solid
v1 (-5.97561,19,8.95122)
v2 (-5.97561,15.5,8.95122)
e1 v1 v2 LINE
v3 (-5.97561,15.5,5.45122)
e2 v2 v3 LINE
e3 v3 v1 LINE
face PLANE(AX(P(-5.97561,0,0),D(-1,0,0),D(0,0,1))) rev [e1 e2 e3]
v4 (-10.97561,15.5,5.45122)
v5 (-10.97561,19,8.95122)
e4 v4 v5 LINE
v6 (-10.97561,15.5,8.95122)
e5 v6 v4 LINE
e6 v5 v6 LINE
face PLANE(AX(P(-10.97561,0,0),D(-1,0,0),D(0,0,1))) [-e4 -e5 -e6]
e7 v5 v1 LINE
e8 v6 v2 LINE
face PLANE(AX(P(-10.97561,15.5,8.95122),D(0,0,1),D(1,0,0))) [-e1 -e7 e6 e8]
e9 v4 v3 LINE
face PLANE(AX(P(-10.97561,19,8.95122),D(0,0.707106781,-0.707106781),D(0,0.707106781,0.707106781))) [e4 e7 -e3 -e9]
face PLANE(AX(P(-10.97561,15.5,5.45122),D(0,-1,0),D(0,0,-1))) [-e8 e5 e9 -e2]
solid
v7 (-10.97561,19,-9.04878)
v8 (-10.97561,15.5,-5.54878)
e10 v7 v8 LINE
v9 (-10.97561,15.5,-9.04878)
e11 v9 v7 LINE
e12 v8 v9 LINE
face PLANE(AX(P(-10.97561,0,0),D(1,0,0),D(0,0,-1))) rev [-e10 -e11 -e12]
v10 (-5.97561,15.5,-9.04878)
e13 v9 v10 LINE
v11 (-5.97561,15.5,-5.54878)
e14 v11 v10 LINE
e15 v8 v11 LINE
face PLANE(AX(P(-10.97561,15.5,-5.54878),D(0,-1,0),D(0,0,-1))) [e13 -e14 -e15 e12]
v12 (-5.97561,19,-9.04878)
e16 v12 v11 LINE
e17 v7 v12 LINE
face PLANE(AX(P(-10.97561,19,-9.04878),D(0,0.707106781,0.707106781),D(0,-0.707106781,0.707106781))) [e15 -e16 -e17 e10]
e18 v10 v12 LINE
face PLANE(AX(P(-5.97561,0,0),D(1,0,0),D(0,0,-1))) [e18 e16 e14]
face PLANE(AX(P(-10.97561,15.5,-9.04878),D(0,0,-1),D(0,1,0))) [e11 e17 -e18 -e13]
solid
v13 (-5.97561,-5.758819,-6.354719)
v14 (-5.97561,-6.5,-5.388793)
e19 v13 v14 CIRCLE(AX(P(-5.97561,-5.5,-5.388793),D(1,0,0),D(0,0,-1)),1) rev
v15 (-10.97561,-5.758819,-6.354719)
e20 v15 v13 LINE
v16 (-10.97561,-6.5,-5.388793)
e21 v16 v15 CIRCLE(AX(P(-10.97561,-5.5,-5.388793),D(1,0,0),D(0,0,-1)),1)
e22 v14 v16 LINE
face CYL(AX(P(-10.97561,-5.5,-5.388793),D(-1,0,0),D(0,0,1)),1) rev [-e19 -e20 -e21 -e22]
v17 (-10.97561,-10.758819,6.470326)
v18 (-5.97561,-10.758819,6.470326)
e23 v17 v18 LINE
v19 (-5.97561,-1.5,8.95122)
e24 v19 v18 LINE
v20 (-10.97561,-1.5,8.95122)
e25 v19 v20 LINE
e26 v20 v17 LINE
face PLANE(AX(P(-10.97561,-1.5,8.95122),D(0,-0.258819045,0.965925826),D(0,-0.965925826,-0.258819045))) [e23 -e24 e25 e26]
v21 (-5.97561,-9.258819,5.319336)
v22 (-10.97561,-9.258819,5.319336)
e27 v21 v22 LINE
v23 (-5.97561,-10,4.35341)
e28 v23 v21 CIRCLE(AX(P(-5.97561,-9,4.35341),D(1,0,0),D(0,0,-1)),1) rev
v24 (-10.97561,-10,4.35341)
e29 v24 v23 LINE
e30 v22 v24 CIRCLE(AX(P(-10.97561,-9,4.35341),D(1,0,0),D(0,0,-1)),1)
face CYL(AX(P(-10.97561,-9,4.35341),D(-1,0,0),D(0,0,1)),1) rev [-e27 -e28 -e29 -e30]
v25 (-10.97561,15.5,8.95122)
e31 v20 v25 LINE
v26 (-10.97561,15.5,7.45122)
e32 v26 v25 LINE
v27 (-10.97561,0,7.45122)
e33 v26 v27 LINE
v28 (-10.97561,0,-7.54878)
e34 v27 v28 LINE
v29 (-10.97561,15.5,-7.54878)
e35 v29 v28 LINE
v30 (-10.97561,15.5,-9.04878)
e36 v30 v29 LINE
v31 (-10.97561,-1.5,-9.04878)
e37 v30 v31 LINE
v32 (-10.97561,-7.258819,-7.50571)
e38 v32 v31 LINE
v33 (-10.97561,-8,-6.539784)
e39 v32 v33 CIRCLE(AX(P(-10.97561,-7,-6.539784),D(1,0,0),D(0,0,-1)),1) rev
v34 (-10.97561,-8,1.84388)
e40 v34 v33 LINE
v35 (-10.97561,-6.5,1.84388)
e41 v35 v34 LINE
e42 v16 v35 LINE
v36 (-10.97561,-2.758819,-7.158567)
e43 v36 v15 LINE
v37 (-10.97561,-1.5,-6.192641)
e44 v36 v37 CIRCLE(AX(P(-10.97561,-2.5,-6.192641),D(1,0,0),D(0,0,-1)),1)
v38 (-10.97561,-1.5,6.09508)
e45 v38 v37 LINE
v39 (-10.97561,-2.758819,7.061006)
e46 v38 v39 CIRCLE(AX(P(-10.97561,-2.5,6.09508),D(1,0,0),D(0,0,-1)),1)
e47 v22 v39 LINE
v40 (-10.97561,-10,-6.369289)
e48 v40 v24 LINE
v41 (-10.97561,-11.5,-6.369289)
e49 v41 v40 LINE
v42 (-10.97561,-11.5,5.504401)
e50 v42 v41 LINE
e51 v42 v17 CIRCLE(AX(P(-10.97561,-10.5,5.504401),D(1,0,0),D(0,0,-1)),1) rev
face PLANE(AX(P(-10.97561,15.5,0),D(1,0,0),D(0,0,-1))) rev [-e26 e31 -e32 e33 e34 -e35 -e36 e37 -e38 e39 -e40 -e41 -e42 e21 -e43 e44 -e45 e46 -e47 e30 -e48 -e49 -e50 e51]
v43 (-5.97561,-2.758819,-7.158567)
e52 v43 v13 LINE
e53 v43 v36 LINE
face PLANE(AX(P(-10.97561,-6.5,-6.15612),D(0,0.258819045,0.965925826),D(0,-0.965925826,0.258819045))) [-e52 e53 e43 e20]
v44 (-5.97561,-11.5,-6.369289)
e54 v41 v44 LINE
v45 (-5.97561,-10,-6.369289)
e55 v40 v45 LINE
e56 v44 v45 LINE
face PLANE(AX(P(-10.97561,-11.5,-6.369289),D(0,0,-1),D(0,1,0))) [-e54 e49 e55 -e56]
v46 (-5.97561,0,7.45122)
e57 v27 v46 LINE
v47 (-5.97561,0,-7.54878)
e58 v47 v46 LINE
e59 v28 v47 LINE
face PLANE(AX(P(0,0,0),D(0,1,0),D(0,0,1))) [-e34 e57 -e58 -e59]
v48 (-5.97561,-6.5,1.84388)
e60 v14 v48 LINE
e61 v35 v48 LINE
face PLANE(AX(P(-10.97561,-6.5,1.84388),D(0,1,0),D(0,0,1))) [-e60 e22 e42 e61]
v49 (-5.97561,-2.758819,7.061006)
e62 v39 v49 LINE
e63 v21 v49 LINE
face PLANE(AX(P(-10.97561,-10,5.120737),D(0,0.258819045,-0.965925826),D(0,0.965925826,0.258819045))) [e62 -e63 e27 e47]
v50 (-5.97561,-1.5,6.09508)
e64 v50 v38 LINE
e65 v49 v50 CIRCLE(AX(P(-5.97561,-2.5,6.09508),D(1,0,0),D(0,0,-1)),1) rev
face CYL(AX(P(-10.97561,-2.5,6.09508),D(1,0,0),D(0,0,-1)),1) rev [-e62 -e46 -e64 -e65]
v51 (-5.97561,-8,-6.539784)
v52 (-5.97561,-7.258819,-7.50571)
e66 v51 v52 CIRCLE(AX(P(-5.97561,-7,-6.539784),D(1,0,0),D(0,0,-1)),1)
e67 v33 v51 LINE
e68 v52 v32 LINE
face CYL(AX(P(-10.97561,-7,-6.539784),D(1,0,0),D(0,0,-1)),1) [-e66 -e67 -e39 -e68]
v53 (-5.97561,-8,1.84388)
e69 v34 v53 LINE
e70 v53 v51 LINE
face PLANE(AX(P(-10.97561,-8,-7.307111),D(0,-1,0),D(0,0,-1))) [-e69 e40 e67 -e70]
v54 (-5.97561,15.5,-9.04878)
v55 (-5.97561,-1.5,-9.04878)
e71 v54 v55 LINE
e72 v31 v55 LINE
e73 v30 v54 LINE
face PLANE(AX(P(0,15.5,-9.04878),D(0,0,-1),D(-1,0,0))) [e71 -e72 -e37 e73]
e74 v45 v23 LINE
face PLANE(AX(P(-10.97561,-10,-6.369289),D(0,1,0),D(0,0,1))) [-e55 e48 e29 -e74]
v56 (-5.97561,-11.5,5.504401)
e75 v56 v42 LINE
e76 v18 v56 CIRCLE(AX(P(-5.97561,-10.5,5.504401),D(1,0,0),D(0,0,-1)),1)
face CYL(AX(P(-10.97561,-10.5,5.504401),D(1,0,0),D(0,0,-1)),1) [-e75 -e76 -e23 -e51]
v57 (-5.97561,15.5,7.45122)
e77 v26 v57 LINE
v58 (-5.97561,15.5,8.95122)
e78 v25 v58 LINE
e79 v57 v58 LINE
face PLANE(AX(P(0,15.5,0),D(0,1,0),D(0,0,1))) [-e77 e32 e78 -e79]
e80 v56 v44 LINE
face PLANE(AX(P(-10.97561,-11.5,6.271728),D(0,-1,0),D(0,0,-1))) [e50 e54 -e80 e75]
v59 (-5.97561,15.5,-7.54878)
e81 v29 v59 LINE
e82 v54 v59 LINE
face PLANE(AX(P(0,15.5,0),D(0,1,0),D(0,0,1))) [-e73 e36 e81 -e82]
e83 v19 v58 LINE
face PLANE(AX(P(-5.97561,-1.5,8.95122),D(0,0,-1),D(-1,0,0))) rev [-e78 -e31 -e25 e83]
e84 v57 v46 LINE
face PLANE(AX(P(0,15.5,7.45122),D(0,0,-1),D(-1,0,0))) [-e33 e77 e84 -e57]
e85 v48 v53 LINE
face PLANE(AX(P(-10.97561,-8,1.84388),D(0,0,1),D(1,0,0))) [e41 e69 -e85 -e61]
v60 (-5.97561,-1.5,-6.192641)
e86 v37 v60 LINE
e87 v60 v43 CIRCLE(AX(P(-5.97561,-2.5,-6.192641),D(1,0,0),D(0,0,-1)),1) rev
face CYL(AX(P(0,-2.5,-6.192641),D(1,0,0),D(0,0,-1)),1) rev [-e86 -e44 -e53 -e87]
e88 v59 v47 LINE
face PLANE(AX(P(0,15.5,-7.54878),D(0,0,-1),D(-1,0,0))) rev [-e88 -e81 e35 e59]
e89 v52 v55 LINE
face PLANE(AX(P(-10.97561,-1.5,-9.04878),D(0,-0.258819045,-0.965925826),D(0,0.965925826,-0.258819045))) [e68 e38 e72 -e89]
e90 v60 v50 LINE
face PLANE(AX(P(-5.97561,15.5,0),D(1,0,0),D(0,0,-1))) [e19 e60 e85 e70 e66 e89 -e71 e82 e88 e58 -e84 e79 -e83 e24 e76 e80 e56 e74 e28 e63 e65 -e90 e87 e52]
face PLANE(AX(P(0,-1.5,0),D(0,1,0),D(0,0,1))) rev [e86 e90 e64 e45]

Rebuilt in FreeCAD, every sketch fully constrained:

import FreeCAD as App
import Part
import Sketcher

V = App.Vector
Q = App.Units.Quantity


def edges_at(feature, points):
    """Names of the edges that pass closest to the given points."""
    edges = feature.Shape.Edges
    near = lambda p: min(range(len(edges)), key=lambda i: edges[i].distToShape(Part.Vertex(*p))[0])
    return sorted({f"Edge{near(p) + 1}" for p in points})


def add_polygon(sketch, points):
    """Adds a closed chain of lines whose ends are joined by coincident constraints."""
    first, n = sketch.GeometryCount, len(points)
    for a, b in zip(points, points[1:] + points[:1]):
        sketch.addGeometry(Part.LineSegment(App.Vector(*a, 0), App.Vector(*b, 0)), False)
    for i in range(n):
        sketch.addConstraint(Sketcher.Constraint("Coincident", first + i, 2, first + (i + 1) % n, 1))

doc = App.newDocument("Part")
body = doc.addObject("PartDesign::Body", "Body")

# Sketch on XZ plane
sketch1 = body.newObject("Sketcher::SketchObject", "Sketch")
sketch1.AttachmentSupport = (doc.getObject("XZ_Plane"), [""])
sketch1.MapMode = "FlatFace"
add_polygon(sketch1, [(-10.97561, -9.04878), (-10.97561, -7.54878), (-5.97561, -7.54878), (-5.97561, -9.04878)])  # lines 0-3
sketch1.addConstraint([
    Sketcher.Constraint("Vertical", 0),
    Sketcher.Constraint("Horizontal", 1),
    Sketcher.Constraint("Vertical", 2),
    Sketcher.Constraint("Horizontal", 3),
    Sketcher.Constraint("DistanceX", 1, 1, 1, 2, 5.0),
    Sketcher.Constraint("DistanceY", 0, 1, 0, 2, 1.5),
    Sketcher.Constraint("DistanceX", 0, 2, -1, 1, 10.97561),
    Sketcher.Constraint("DistanceY", 0, 2, -1, 1, 7.54878),
])
pad1 = body.newObject("PartDesign::Pad", "Pad")
pad1.Profile = sketch1
pad1.Length = 15.5
pad1.Reversed = True
body2 = doc.addObject("PartDesign::Body", "Body001")

# Sketch on XZ plane
sketch2 = body2.newObject("Sketcher::SketchObject", "Sketch001")
sketch2.AttachmentSupport = (doc.getObject("XZ_Plane001"), [""])
sketch2.MapMode = "FlatFace"
add_polygon(sketch2, [(-10.97561, 7.45122), (-10.97561, 8.95122), (-5.97561, 8.95122), (-5.97561, 7.45122)])  # lines 0-3
sketch2.addConstraint([
    Sketcher.Constraint("Vertical", 0),
    Sketcher.Constraint("Horizontal", 1),
    Sketcher.Constraint("Vertical", 2),
    Sketcher.Constraint("Horizontal", 3),
    Sketcher.Constraint("DistanceX", 1, 1, 1, 2, 5.0),
    Sketcher.Constraint("DistanceY", 0, 1, 0, 2, 1.5),
    Sketcher.Constraint("DistanceX", 0, 2, -1, 1, 10.97561),
    Sketcher.Constraint("DistanceY", -1, 1, 0, 2, 8.95122),
])
pad2 = body2.newObject("PartDesign::Pad", "Pad001")
pad2.Profile = sketch2
pad2.Length = 15.5
pad2.Reversed = True
body.AllowCompound = True
doc.recompute()

boolean = body.newObject("PartDesign::Boolean", "Boolean")
boolean.Type = "Fuse"
boolean.addObjects([body2])

# Sketch on XZ plane
sketch3 = body.newObject("Sketcher::SketchObject", "Sketch002")
sketch3.AttachmentSupport = (doc.getObject("XZ_Plane"), [""])
sketch3.MapMode = "FlatFace"
add_polygon(sketch3, [(-10.97561, 8.95122), (-10.97561, -9.04878), (-5.97561, -9.04878), (-5.97561, 8.95122)])  # lines 0-3
sketch3.addConstraint([
    Sketcher.Constraint("Vertical", 0),
    Sketcher.Constraint("Horizontal", 1),
    Sketcher.Constraint("Vertical", 2),
    Sketcher.Constraint("Horizontal", 3),
    Sketcher.Constraint("DistanceX", 1, 1, 1, 2, 5.0),
    Sketcher.Constraint("DistanceY", 0, 2, 0, 1, 18.0),
    Sketcher.Constraint("DistanceX", 0, 2, -1, 1, 10.97561),
    Sketcher.Constraint("DistanceY", 0, 2, -1, 1, 9.04878),
])
pad3 = body.newObject("PartDesign::Pad", "Pad002")
pad3.Profile = sketch3
pad3.Length = 1.5

# Sketch on YZ plane
sketch4 = body.newObject("Sketcher::SketchObject", "Sketch003")
sketch4.AttachmentSupport = (doc.getObject("YZ_Plane"), [""])
sketch4.MapMode = "FlatFace"
sketch4.AttachmentOffset = App.Placement(V(0, 0, -5.97561), App.Rotation())
add_polygon(sketch4, [(-1.5, 8.95122), (-11.5, 6.271728), (-11.5, -6.369289), (-10, -6.369289), (-10, 5.120737), (-1.5, 7.398305)])  # lines 0-5
add_polygon(sketch4, [(-8, -7.307111), (-1.5, -9.04878), (-1.5, -7.495866), (-6.5, -6.15612), (-6.5, 1.84388), (-8, 1.84388)])  # lines 6-11
sketch4.addConstraint([
    Sketcher.Constraint("Vertical", 1),
    Sketcher.Constraint("Horizontal", 2),
    Sketcher.Constraint("Vertical", 3),
    Sketcher.Constraint("Vertical", 5),
    Sketcher.Constraint("Vertical", 7),
    Sketcher.Constraint("Vertical", 9),
    Sketcher.Constraint("Horizontal", 10),
    Sketcher.Constraint("Vertical", 11),
    Sketcher.Constraint("Parallel", 0, 4),
    Sketcher.Constraint("Parallel", 6, 8),
    Sketcher.Constraint("Vertical", 5, 2, 6, 2),
    Sketcher.Constraint("Equal", 2, 10),
    Sketcher.Constraint("Equal", 5, 7),
    Sketcher.Constraint("DistanceY", 9, 1, 9, 2, 8.0),
    Sketcher.Constraint("Angle", 0, Q("-165 deg")),
    Sketcher.Constraint("Angle", 6, Q("-15 deg")),
    Sketcher.Constraint("DistanceX", 2, 1, 2, 2, 1.5),
    Sketcher.Constraint("DistanceX", 2, 2, -1, 1, 10.0),
    Sketcher.Constraint("DistanceX", 10, 2, -1, 1, 8.0),
    Sketcher.Constraint("DistanceX", 0, 2, 4, 2, 10.0),
    Sketcher.Constraint("DistanceY", 6, 2, 5, 2, 18.0),
    Sketcher.Constraint("DistanceY", 11, 2, 11, 1, 9.15099),
    Sketcher.Constraint("DistanceY", 1, 2, 1, 1, 12.641016),
    Sketcher.Constraint("DistanceY", 1, 2, -1, 1, 6.369289),
])
pad4 = body.newObject("PartDesign::Pad", "Pad003")
pad4.Profile = sketch4
pad4.Length = 5
pad4.Reversed = True
doc.recompute()

fillet = body.newObject("PartDesign::Fillet", "Fillet")
fillet.Base = (pad4, edges_at(pad4, [
    (-8.476, -1.5, 7.398),
    (-8.476, -10, 5.121),
    (-8.476, -11.5, 6.272),
    (-8.476, -1.5, -7.496),
    (-8.476, -8, -7.307),
    (-8.476, -6.5, -6.156),
]))
fillet.Radius = 1
body3 = doc.addObject("PartDesign::Body", "Body002")

# Sketch on YZ plane
sketch5 = body3.newObject("Sketcher::SketchObject", "Sketch004")
sketch5.AttachmentSupport = (doc.getObject("YZ_Plane002"), [""])
sketch5.MapMode = "FlatFace"
sketch5.AttachmentOffset = App.Placement(V(0, 0, -5.97561), App.Rotation())
add_polygon(sketch5, [(15.5, -9.04878), (19, -9.04878), (15.5, -5.54878)])  # lines 0-2
sketch5.addConstraint([
    Sketcher.Constraint("Horizontal", 0),
    Sketcher.Constraint("Vertical", 2),
    Sketcher.Constraint("Equal", 0, 2),
    Sketcher.Constraint("DistanceX", 0, 1, 0, 2, 3.5),
    Sketcher.Constraint("DistanceX", -1, 1, 0, 2, 19.0),
    Sketcher.Constraint("DistanceY", 0, 2, -1, 1, 9.04878),
])
pad5 = body3.newObject("PartDesign::Pad", "Pad004")
pad5.Profile = sketch5
pad5.Length = 5
pad5.Reversed = True
body4 = doc.addObject("PartDesign::Body", "Body003")

# Sketch on YZ plane
sketch6 = body4.newObject("Sketcher::SketchObject", "Sketch005")
sketch6.AttachmentSupport = (doc.getObject("YZ_Plane003"), [""])
sketch6.MapMode = "FlatFace"
sketch6.AttachmentOffset = App.Placement(V(0, 0, -5.97561), App.Rotation())
add_polygon(sketch6, [(19, 8.95122), (15.5, 8.95122), (15.5, 5.45122)])  # lines 0-2
sketch6.addConstraint([
    Sketcher.Constraint("Horizontal", 0),
    Sketcher.Constraint("Vertical", 1),
    Sketcher.Constraint("Equal", 0, 1),
    Sketcher.Constraint("DistanceX", 0, 2, 0, 1, 3.5),
    Sketcher.Constraint("DistanceX", -1, 1, 2, 2, 19.0),
    Sketcher.Constraint("DistanceY", -1, 1, 0, 2, 8.95122),
])
pad6 = body4.newObject("PartDesign::Pad", "Pad005")
pad6.Profile = sketch6
pad6.Length = 5
pad6.Reversed = True

doc.recompute()
